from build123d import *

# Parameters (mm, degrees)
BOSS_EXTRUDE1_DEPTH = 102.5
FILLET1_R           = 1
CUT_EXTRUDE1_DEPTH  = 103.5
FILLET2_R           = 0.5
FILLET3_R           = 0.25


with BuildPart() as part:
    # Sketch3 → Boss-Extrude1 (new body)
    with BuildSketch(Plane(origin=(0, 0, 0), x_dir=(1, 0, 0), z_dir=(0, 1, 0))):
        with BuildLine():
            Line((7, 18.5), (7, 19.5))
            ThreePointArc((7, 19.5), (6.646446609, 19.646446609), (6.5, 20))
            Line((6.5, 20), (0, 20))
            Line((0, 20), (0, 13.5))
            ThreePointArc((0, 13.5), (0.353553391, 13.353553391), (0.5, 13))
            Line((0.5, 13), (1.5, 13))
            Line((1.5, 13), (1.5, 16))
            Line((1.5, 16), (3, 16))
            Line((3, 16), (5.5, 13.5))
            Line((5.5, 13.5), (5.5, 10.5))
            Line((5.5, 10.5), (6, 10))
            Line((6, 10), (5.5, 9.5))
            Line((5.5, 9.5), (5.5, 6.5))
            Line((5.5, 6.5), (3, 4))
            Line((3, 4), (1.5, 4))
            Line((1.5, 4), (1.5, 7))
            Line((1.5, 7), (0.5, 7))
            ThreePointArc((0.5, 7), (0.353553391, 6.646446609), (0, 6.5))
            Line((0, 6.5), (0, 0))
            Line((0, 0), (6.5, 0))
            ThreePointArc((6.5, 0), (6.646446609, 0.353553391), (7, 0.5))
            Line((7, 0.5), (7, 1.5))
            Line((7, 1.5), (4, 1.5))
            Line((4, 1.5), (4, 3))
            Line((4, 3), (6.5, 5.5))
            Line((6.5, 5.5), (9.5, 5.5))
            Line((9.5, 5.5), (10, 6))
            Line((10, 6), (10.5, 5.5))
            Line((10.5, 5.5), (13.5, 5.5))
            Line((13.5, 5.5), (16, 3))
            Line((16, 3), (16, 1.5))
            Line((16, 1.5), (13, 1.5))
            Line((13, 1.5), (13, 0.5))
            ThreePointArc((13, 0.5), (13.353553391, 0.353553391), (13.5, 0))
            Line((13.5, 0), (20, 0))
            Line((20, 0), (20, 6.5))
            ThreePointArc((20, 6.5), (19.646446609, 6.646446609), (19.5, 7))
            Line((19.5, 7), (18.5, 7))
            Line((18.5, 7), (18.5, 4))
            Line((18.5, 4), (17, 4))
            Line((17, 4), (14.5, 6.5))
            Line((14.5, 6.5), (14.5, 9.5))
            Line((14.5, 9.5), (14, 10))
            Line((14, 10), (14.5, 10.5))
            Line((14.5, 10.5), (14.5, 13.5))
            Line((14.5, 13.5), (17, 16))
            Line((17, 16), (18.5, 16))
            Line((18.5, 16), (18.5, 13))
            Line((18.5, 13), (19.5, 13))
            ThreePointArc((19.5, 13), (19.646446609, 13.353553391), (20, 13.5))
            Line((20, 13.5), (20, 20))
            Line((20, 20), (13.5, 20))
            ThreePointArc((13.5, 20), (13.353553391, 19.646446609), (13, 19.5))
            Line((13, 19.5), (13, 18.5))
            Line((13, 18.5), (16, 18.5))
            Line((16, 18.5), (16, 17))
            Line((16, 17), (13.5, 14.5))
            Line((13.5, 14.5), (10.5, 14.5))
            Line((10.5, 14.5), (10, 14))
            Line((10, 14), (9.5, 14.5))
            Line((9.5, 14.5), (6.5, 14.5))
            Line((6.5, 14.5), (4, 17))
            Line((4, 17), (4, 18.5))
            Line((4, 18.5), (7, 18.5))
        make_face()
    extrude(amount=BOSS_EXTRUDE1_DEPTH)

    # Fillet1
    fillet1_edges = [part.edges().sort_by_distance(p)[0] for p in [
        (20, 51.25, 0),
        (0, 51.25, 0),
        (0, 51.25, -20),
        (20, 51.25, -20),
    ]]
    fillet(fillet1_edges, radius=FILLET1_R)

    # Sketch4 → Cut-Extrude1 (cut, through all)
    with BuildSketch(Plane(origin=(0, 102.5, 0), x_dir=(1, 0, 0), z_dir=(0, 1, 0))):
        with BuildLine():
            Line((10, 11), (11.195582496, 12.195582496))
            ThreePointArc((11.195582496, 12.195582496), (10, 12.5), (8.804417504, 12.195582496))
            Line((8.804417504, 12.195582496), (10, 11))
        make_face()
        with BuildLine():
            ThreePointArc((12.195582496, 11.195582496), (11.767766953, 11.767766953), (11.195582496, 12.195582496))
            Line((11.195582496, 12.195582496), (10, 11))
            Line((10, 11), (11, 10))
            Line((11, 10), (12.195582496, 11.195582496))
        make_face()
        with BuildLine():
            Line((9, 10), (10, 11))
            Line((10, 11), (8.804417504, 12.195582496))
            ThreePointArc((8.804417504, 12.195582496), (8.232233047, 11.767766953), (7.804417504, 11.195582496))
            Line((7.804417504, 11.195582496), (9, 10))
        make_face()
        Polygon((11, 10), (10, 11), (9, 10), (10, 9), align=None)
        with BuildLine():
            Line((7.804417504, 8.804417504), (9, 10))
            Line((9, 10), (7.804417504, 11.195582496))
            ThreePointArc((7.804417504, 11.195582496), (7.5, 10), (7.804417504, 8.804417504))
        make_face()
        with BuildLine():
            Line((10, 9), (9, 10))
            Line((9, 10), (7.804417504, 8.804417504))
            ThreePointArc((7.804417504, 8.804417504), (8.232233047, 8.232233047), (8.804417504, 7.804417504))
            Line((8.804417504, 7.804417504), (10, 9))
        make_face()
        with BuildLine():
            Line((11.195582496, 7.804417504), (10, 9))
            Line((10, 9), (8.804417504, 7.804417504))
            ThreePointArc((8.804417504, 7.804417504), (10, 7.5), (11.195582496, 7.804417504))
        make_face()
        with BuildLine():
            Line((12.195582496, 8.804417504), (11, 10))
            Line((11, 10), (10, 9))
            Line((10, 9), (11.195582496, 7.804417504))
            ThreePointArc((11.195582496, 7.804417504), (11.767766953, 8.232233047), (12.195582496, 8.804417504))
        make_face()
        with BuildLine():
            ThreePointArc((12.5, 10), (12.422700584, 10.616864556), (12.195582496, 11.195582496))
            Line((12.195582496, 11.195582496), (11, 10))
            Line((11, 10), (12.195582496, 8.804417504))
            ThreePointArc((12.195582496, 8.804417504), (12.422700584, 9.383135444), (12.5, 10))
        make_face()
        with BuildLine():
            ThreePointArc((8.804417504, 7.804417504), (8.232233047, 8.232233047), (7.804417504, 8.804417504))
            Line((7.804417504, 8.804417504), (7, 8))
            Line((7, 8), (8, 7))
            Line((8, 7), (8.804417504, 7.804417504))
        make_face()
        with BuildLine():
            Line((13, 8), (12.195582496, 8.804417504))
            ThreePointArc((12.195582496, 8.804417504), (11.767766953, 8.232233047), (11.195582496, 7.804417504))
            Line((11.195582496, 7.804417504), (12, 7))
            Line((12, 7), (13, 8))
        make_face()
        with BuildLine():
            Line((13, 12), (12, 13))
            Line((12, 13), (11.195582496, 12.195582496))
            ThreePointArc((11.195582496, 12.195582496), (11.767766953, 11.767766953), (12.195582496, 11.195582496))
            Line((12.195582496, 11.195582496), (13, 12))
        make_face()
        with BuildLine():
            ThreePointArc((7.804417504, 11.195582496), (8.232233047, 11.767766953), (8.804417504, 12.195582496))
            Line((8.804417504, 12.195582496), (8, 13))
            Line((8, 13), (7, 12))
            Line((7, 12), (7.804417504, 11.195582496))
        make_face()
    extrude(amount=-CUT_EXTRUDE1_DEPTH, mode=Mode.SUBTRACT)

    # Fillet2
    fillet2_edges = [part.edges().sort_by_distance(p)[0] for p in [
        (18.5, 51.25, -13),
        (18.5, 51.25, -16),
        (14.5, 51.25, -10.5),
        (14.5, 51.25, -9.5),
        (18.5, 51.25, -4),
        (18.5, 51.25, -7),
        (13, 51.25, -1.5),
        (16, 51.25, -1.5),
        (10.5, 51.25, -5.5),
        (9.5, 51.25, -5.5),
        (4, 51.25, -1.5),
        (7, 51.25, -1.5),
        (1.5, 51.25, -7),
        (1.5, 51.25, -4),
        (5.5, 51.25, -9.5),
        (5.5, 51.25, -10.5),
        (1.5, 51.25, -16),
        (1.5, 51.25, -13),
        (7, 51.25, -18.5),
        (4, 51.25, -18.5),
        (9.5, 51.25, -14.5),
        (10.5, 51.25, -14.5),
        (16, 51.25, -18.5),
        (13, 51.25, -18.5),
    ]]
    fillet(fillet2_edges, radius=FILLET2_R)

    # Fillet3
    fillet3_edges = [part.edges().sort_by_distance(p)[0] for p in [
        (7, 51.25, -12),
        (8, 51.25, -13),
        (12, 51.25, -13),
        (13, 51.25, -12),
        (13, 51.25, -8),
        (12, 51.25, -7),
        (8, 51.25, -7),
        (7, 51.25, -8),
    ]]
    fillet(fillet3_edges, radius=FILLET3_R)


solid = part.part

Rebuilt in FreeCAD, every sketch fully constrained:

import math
import FreeCAD as App
import Part
import Sketcher
Q = App.Units.Quantity


def edges_at(feature, points):
    """Names of the edges that pass closest to the given points."""
    edges = feature.Shape.Edges
    near = lambda p: min(range(len(edges)), key=lambda i: edges[i].distToShape(Part.Vertex(*p))[0])
    return sorted({f"Edge{near(p) + 1}" for p in points})

doc = App.newDocument("Part")
body = doc.addObject("PartDesign::Body", "Body")

sketch1 = doc.addObject("Sketcher::SketchObject", "Sketch")
body.addObject(sketch1)
sketch1.AttachmentSupport = (doc.XZ_Plane, [""])
sketch1.MapMode = "FlatFace"
sketch1.addGeometry(Part.LineSegment(App.Vector(7, -18.5, 0), App.Vector(7, -19.5, 0)), False)
sketch1.addGeometry(Part.ArcOfCircle(Part.Circle(App.Vector(7, -20, 0), App.Vector(0, 0, 1), 0.5), math.radians(90), math.radians(180)), False)
sketch1.addGeometry(Part.LineSegment(App.Vector(6.5, -20, 0), App.Vector(0, -20, 0)), False)
sketch1.addGeometry(Part.LineSegment(App.Vector(0, -20, 0), App.Vector(0, -13.5, 0)), False)
sketch1.addGeometry(Part.ArcOfCircle(Part.Circle(App.Vector(0, -13, 0), App.Vector(0, 0, 1), 0.5), math.radians(-90), math.radians(0)), False)
sketch1.addGeometry(Part.LineSegment(App.Vector(0.5, -13, 0), App.Vector(1.5, -13, 0)), False)
sketch1.addGeometry(Part.LineSegment(App.Vector(1.5, -13, 0), App.Vector(1.5, -16, 0)), False)
sketch1.addGeometry(Part.LineSegment(App.Vector(1.5, -16, 0), App.Vector(3, -16, 0)), False)
sketch1.addGeometry(Part.LineSegment(App.Vector(3, -16, 0), App.Vector(5.5, -13.5, 0)), False)
sketch1.addGeometry(Part.LineSegment(App.Vector(5.5, -13.5, 0), App.Vector(5.5, -10.5, 0)), False)
sketch1.addGeometry(Part.LineSegment(App.Vector(5.5, -10.5, 0), App.Vector(6, -10, 0)), False)
sketch1.addGeometry(Part.LineSegment(App.Vector(6, -10, 0), App.Vector(5.5, -9.5, 0)), False)
sketch1.addGeometry(Part.LineSegment(App.Vector(5.5, -9.5, 0), App.Vector(5.5, -6.5, 0)), False)
sketch1.addGeometry(Part.LineSegment(App.Vector(5.5, -6.5, 0), App.Vector(3, -4, 0)), False)
sketch1.addGeometry(Part.LineSegment(App.Vector(3, -4, 0), App.Vector(1.5, -4, 0)), False)
sketch1.addGeometry(Part.LineSegment(App.Vector(1.5, -4, 0), App.Vector(1.5, -7, 0)), False)
sketch1.addGeometry(Part.LineSegment(App.Vector(1.5, -7, 0), App.Vector(0.5, -7, 0)), False)
sketch1.addGeometry(Part.ArcOfCircle(Part.Circle(App.Vector(0, -7, 0), App.Vector(0, 0, 1), 0.5), math.radians(0), math.radians(90)), False)
sketch1.addGeometry(Part.LineSegment(App.Vector(0, -6.5, 0), App.Vector(0, 0, 0)), False)
sketch1.addGeometry(Part.LineSegment(App.Vector(0, 0, 0), App.Vector(6.5, 0, 0)), False)
sketch1.addGeometry(Part.ArcOfCircle(Part.Circle(App.Vector(7, 0, 0), App.Vector(0, 0, 1), 0.5), math.radians(180), math.radians(270)), False)
sketch1.addGeometry(Part.LineSegment(App.Vector(7, -0.5, 0), App.Vector(7, -1.5, 0)), False)
sketch1.addGeometry(Part.LineSegment(App.Vector(7, -1.5, 0), App.Vector(4, -1.5, 0)), False)
sketch1.addGeometry(Part.LineSegment(App.Vector(4, -1.5, 0), App.Vector(4, -3, 0)), False)
sketch1.addGeometry(Part.LineSegment(App.Vector(4, -3, 0), App.Vector(6.5, -5.5, 0)), False)
sketch1.addGeometry(Part.LineSegment(App.Vector(6.5, -5.5, 0), App.Vector(9.5, -5.5, 0)), False)
sketch1.addGeometry(Part.LineSegment(App.Vector(9.5, -5.5, 0), App.Vector(10, -6, 0)), False)
sketch1.addGeometry(Part.LineSegment(App.Vector(10, -6, 0), App.Vector(10.5, -5.5, 0)), False)
sketch1.addGeometry(Part.LineSegment(App.Vector(10.5, -5.5, 0), App.Vector(13.5, -5.5, 0)), False)
sketch1.addGeometry(Part.LineSegment(App.Vector(13.5, -5.5, 0), App.Vector(16, -3, 0)), False)
sketch1.addGeometry(Part.LineSegment(App.Vector(16, -3, 0), App.Vector(16, -1.5, 0)), False)
sketch1.addGeometry(Part.LineSegment(App.Vector(16, -1.5, 0), App.Vector(13, -1.5, 0)), False)
sketch1.addGeometry(Part.LineSegment(App.Vector(13, -1.5, 0), App.Vector(13, -0.5, 0)), False)
sketch1.addGeometry(Part.ArcOfCircle(Part.Circle(App.Vector(13, 0, 0), App.Vector(0, 0, 1), 0.5), math.radians(-90), math.radians(0)), False)
sketch1.addGeometry(Part.LineSegment(App.Vector(13.5, 0, 0), App.Vector(20, 0, 0)), False)
sketch1.addGeometry(Part.LineSegment(App.Vector(20, 0, 0), App.Vector(20, -6.5, 0)), False)
sketch1.addGeometry(Part.ArcOfCircle(Part.Circle(App.Vector(20, -7, 0), App.Vector(0, 0, 1), 0.5), math.radians(90), math.radians(180)), False)
sketch1.addGeometry(Part.LineSegment(App.Vector(19.5, -7, 0), App.Vector(18.5, -7, 0)), False)
sketch1.addGeometry(Part.LineSegment(App.Vector(18.5, -7, 0), App.Vector(18.5, -4, 0)), False)
sketch1.addGeometry(Part.LineSegment(App.Vector(18.5, -4, 0), App.Vector(17, -4, 0)), False)
sketch1.addGeometry(Part.LineSegment(App.Vector(17, -4, 0), App.Vector(14.5, -6.5, 0)), False)
sketch1.addGeometry(Part.LineSegment(App.Vector(14.5, -6.5, 0), App.Vector(14.5, -9.5, 0)), False)
sketch1.addGeometry(Part.LineSegment(App.Vector(14.5, -9.5, 0), App.Vector(14, -10, 0)), False)
sketch1.addGeometry(Part.LineSegment(App.Vector(14, -10, 0), App.Vector(14.5, -10.5, 0)), False)
sketch1.addGeometry(Part.LineSegment(App.Vector(14.5, -10.5, 0), App.Vector(14.5, -13.5, 0)), False)
sketch1.addGeometry(Part.LineSegment(App.Vector(14.5, -13.5, 0), App.Vector(17, -16, 0)), False)
sketch1.addGeometry(Part.LineSegment(App.Vector(17, -16, 0), App.Vector(18.5, -16, 0)), False)
sketch1.addGeometry(Part.LineSegment(App.Vector(18.5, -16, 0), App.Vector(18.5, -13, 0)), False)
sketch1.addGeometry(Part.LineSegment(App.Vector(18.5, -13, 0), App.Vector(19.5, -13, 0)), False)
sketch1.addGeometry(Part.ArcOfCircle(Part.Circle(App.Vector(20, -13, 0), App.Vector(0, 0, 1), 0.5), math.radians(180), math.radians(270)), False)
sketch1.addGeometry(Part.LineSegment(App.Vector(20, -13.5, 0), App.Vector(20, -20, 0)), False)
sketch1.addGeometry(Part.LineSegment(App.Vector(20, -20, 0), App.Vector(13.5, -20, 0)), False)
sketch1.addGeometry(Part.ArcOfCircle(Part.Circle(App.Vector(13, -20, 0), App.Vector(0, 0, 1), 0.5), math.radians(0), math.radians(90)), False)
sketch1.addGeometry(Part.LineSegment(App.Vector(13, -19.5, 0), App.Vector(13, -18.5, 0)), False)
sketch1.addGeometry(Part.LineSegment(App.Vector(13, -18.5, 0), App.Vector(16, -18.5, 0)), False)
sketch1.addGeometry(Part.LineSegment(App.Vector(16, -18.5, 0), App.Vector(16, -17, 0)), False)
sketch1.addGeometry(Part.LineSegment(App.Vector(16, -17, 0), App.Vector(13.5, -14.5, 0)), False)
sketch1.addGeometry(Part.LineSegment(App.Vector(13.5, -14.5, 0), App.Vector(10.5, -14.5, 0)), False)
sketch1.addGeometry(Part.LineSegment(App.Vector(10.5, -14.5, 0), App.Vector(10, -14, 0)), False)
sketch1.addGeometry(Part.LineSegment(App.Vector(10, -14, 0), App.Vector(9.5, -14.5, 0)), False)
sketch1.addGeometry(Part.LineSegment(App.Vector(9.5, -14.5, 0), App.Vector(6.5, -14.5, 0)), False)
sketch1.addGeometry(Part.LineSegment(App.Vector(6.5, -14.5, 0), App.Vector(4, -17, 0)), False)
sketch1.addGeometry(Part.LineSegment(App.Vector(4, -17, 0), App.Vector(4, -18.5, 0)), False)
sketch1.addGeometry(Part.LineSegment(App.Vector(4, -18.5, 0), App.Vector(7, -18.5, 0)), False)
sketch1.addConstraint(Sketcher.Constraint("Coincident", 0, 2, 1, 1))
sketch1.addConstraint(Sketcher.Constraint("Coincident", 1, 2, 2, 1))
sketch1.addConstraint(Sketcher.Constraint("Coincident", 2, 2, 3, 1))
sketch1.addConstraint(Sketcher.Constraint("Coincident", 3, 2, 4, 1))
sketch1.addConstraint(Sketcher.Constraint("Coincident", 4, 2, 5, 1))
sketch1.addConstraint(Sketcher.Constraint("Coincident", 5, 2, 6, 1))
sketch1.addConstraint(Sketcher.Constraint("Coincident", 6, 2, 7, 1))
sketch1.addConstraint(Sketcher.Constraint("Coincident", 7, 2, 8, 1))
sketch1.addConstraint(Sketcher.Constraint("Coincident", 8, 2, 9, 1))
sketch1.addConstraint(Sketcher.Constraint("Coincident", 9, 2, 10, 1))
sketch1.addConstraint(Sketcher.Constraint("Coincident", 10, 2, 11, 1))
sketch1.addConstraint(Sketcher.Constraint("Coincident", 11, 2, 12, 1))
sketch1.addConstraint(Sketcher.Constraint("Coincident", 12, 2, 13, 1))
sketch1.addConstraint(Sketcher.Constraint("Coincident", 13, 2, 14, 1))
sketch1.addConstraint(Sketcher.Constraint("Coincident", 14, 2, 15, 1))
sketch1.addConstraint(Sketcher.Constraint("Coincident", 15, 2, 16, 1))
sketch1.addConstraint(Sketcher.Constraint("Coincident", 16, 2, 17, 1))
sketch1.addConstraint(Sketcher.Constraint("Coincident", 17, 2, 18, 1))
sketch1.addConstraint(Sketcher.Constraint("Coincident", 18, 2, 19, 1))
sketch1.addConstraint(Sketcher.Constraint("Coincident", 19, 2, 20, 1))
sketch1.addConstraint(Sketcher.Constraint("Coincident", 20, 2, 21, 1))
sketch1.addConstraint(Sketcher.Constraint("Coincident", 21, 2, 22, 1))
sketch1.addConstraint(Sketcher.Constraint("Coincident", 22, 2, 23, 1))
sketch1.addConstraint(Sketcher.Constraint("Coincident", 23, 2, 24, 1))
sketch1.addConstraint(Sketcher.Constraint("Coincident", 24, 2, 25, 1))
sketch1.addConstraint(Sketcher.Constraint("Coincident", 25, 2, 26, 1))
sketch1.addConstraint(Sketcher.Constraint("Coincident", 26, 2, 27, 1))
sketch1.addConstraint(Sketcher.Constraint("Coincident", 27, 2, 28, 1))
sketch1.addConstraint(Sketcher.Constraint("Coincident", 28, 2, 29, 1))
sketch1.addConstraint(Sketcher.Constraint("Coincident", 29, 2, 30, 1))
sketch1.addConstraint(Sketcher.Constraint("Coincident", 30, 2, 31, 1))
sketch1.addConstraint(Sketcher.Constraint("Coincident", 31, 2, 32, 1))
sketch1.addConstraint(Sketcher.Constraint("Coincident", 32, 2, 33, 1))
sketch1.addConstraint(Sketcher.Constraint("Coincident", 33, 2, 34, 1))
sketch1.addConstraint(Sketcher.Constraint("Coincident", 34, 2, 35, 1))
sketch1.addConstraint(Sketcher.Constraint("Coincident", 35, 2, 36, 1))
sketch1.addConstraint(Sketcher.Constraint("Coincident", 36, 2, 37, 1))
sketch1.addConstraint(Sketcher.Constraint("Coincident", 37, 2, 38, 1))
sketch1.addConstraint(Sketcher.Constraint("Coincident", 38, 2, 39, 1))
sketch1.addConstraint(Sketcher.Constraint("Coincident", 39, 2, 40, 1))
sketch1.addConstraint(Sketcher.Constraint("Coincident", 40, 2, 41, 1))
sketch1.addConstraint(Sketcher.Constraint("Coincident", 41, 2, 42, 1))
sketch1.addConstraint(Sketcher.Constraint("Coincident", 42, 2, 43, 1))
sketch1.addConstraint(Sketcher.Constraint("Coincident", 43, 2, 44, 1))
sketch1.addConstraint(Sketcher.Constraint("Coincident", 44, 2, 45, 1))
sketch1.addConstraint(Sketcher.Constraint("Coincident", 45, 2, 46, 1))
sketch1.addConstraint(Sketcher.Constraint("Coincident", 46, 2, 47, 1))
sketch1.addConstraint(Sketcher.Constraint("Coincident", 47, 2, 48, 1))
sketch1.addConstraint(Sketcher.Constraint("Coincident", 48, 2, 49, 1))
sketch1.addConstraint(Sketcher.Constraint("Coincident", 49, 2, 50, 1))
sketch1.addConstraint(Sketcher.Constraint("Coincident", 50, 2, 51, 1))
sketch1.addConstraint(Sketcher.Constraint("Coincident", 51, 2, 52, 1))
sketch1.addConstraint(Sketcher.Constraint("Coincident", 52, 2, 53, 1))
sketch1.addConstraint(Sketcher.Constraint("Coincident", 53, 2, 54, 1))
sketch1.addConstraint(Sketcher.Constraint("Coincident", 54, 2, 55, 1))
sketch1.addConstraint(Sketcher.Constraint("Coincident", 55, 2, 56, 1))
sketch1.addConstraint(Sketcher.Constraint("Coincident", 56, 2, 57, 1))
sketch1.addConstraint(Sketcher.Constraint("Coincident", 57, 2, 58, 1))
sketch1.addConstraint(Sketcher.Constraint("Coincident", 58, 2, 59, 1))
sketch1.addConstraint(Sketcher.Constraint("Coincident", 59, 2, 60, 1))
sketch1.addConstraint(Sketcher.Constraint("Coincident", 60, 2, 61, 1))
sketch1.addConstraint(Sketcher.Constraint("Coincident", 61, 2, 62, 1))
sketch1.addConstraint(Sketcher.Constraint("Coincident", 62, 2, 63, 1))
sketch1.addConstraint(Sketcher.Constraint("Coincident", 63, 2, 0, 1))
sketch1.addConstraint(Sketcher.Constraint("Vertical", 0))
sketch1.addConstraint(Sketcher.Constraint("Horizontal", 2))
sketch1.addConstraint(Sketcher.Constraint("Vertical", 3))
sketch1.addConstraint(Sketcher.Constraint("Horizontal", 5))
sketch1.addConstraint(Sketcher.Constraint("Vertical", 6))
sketch1.addConstraint(Sketcher.Constraint("Horizontal", 7))
sketch1.addConstraint(Sketcher.Constraint("Vertical", 9))
sketch1.addConstraint(Sketcher.Constraint("Vertical", 12))
sketch1.addConstraint(Sketcher.Constraint("Horizontal", 14))
sketch1.addConstraint(Sketcher.Constraint("Vertical", 15))
sketch1.addConstraint(Sketcher.Constraint("Horizontal", 16))
sketch1.addConstraint(Sketcher.Constraint("Vertical", 18))
sketch1.addConstraint(Sketcher.Constraint("Horizontal", 19))
sketch1.addConstraint(Sketcher.Constraint("Vertical", 21))
sketch1.addConstraint(Sketcher.Constraint("Horizontal", 22))
sketch1.addConstraint(Sketcher.Constraint("Vertical", 23))
sketch1.addConstraint(Sketcher.Constraint("Horizontal", 25))
sketch1.addConstraint(Sketcher.Constraint("Horizontal", 28))
sketch1.addConstraint(Sketcher.Constraint("Vertical", 30))
sketch1.addConstraint(Sketcher.Constraint("Horizontal", 31))
sketch1.addConstraint(Sketcher.Constraint("Vertical", 32))
sketch1.addConstraint(Sketcher.Constraint("Horizontal", 34))
sketch1.addConstraint(Sketcher.Constraint("Vertical", 35))
sketch1.addConstraint(Sketcher.Constraint("Horizontal", 37))
sketch1.addConstraint(Sketcher.Constraint("Vertical", 38))
sketch1.addConstraint(Sketcher.Constraint("Horizontal", 39))
sketch1.addConstraint(Sketcher.Constraint("Vertical", 41))
sketch1.addConstraint(Sketcher.Constraint("Vertical", 44))
sketch1.addConstraint(Sketcher.Constraint("Horizontal", 46))
sketch1.addConstraint(Sketcher.Constraint("Vertical", 47))
sketch1.addConstraint(Sketcher.Constraint("Horizontal", 48))
sketch1.addConstraint(Sketcher.Constraint("Vertical", 50))
sketch1.addConstraint(Sketcher.Constraint("Horizontal", 51))
sketch1.addConstraint(Sketcher.Constraint("Vertical", 53))
sketch1.addConstraint(Sketcher.Constraint("Horizontal", 54))
sketch1.addConstraint(Sketcher.Constraint("Vertical", 55))
sketch1.addConstraint(Sketcher.Constraint("Horizontal", 57))
sketch1.addConstraint(Sketcher.Constraint("Horizontal", 60))
sketch1.addConstraint(Sketcher.Constraint("Vertical", 62))
sketch1.addConstraint(Sketcher.Constraint("Horizontal", 63))
sketch1.addConstraint(Sketcher.Constraint("Coincident", 18, 2, -1, 1))
sketch1.addConstraint(Sketcher.Constraint("Equal", 1, 4))
sketch1.addConstraint(Sketcher.Constraint("Equal", 4, 17))
sketch1.addConstraint(Sketcher.Constraint("Equal", 17, 20))
sketch1.addConstraint(Sketcher.Constraint("Equal", 20, 33))
sketch1.addConstraint(Sketcher.Constraint("Equal", 33, 36))
sketch1.addConstraint(Sketcher.Constraint("Equal", 36, 49))
sketch1.addConstraint(Sketcher.Constraint("Equal", 49, 52))
sketch1.addConstraint(Sketcher.Constraint("PointOnObject", 4, 3, -2))
sketch1.addConstraint(Sketcher.Constraint("PointOnObject", 17, 3, -2))
sketch1.addConstraint(Sketcher.Constraint("PointOnObject", 20, 3, -1))
sketch1.addConstraint(Sketcher.Constraint("PointOnObject", 33, 3, -1))
sketch1.addConstraint(Sketcher.Constraint("PointOnObject", 2, 2, -2))
sketch1.addConstraint(Sketcher.Constraint("PointOnObject", 33, 2, -1))
sketch1.addConstraint(Sketcher.Constraint("Parallel", 8, 10))
sketch1.addConstraint(Sketcher.Constraint("Perpendicular", 10, 11))
sketch1.addConstraint(Sketcher.Constraint("Parallel", 11, 13))
sketch1.addConstraint(Sketcher.Constraint("Parallel", 13, 24))
sketch1.addConstraint(Sketcher.Constraint("Parallel", 24, 26))
sketch1.addConstraint(Sketcher.Constraint("Perpendicular", 26, 27))
sketch1.addConstraint(Sketcher.Constraint("Parallel", 27, 29))
sketch1.addConstraint(Sketcher.Constraint("Parallel", 29, 40))
sketch1.addConstraint(Sketcher.Constraint("Parallel", 40, 42))
sketch1.addConstraint(Sketcher.Constraint("Perpendicular", 42, 43))
sketch1.addConstraint(Sketcher.Constraint("Parallel", 43, 45))
sketch1.addConstraint(Sketcher.Constraint("Parallel", 45, 56))
sketch1.addConstraint(Sketcher.Constraint("Parallel", 56, 58))
sketch1.addConstraint(Sketcher.Constraint("Perpendicular", 58, 59))
sketch1.addConstraint(Sketcher.Constraint("Parallel", 59, 61))
sketch1.addConstraint(Sketcher.Constraint("Horizontal", 17, 3, 36, 3))
sketch1.addConstraint(Sketcher.Constraint("Horizontal", 4, 3, 49, 3))
sketch1.addConstraint(Sketcher.Constraint("Horizontal", 1, 3, 52, 3))
sketch1.addConstraint(Sketcher.Constraint("Horizontal", 52, 3, 1, 2))
sketch1.addConstraint(Sketcher.Constraint("Horizontal", 49, 3, 4, 2))
sketch1.addConstraint(Sketcher.Constraint("Horizontal", 3, 2, 8, 2))
sketch1.addConstraint(Sketcher.Constraint("Horizontal", 36, 3, 15, 2))
sketch1.addConstraint(Sketcher.Constraint("Horizontal", 12, 2, 17, 2))
sketch1.addConstraint(Sketcher.Constraint("Horizontal", 25, 2, 27, 2))
sketch1.addConstraint(Sketcher.Constraint("Horizontal", 23, 2, 29, 2))
sketch1.addConstraint(Sketcher.Constraint("Horizontal", 22, 2, 30, 2))
sketch1.addConstraint(Sketcher.Constraint("Horizontal", 16, 2, 36, 2))
sketch1.addConstraint(Sketcher.Constraint("Horizontal", 14, 2, 38, 2))
sketch1.addConstraint(Sketcher.Constraint("Horizontal", 35, 2, 40, 2))
sketch1.addConstraint(Sketcher.Constraint("Horizontal", 11, 2, 41, 2))
sketch1.addConstraint(Sketcher.Constraint("Horizontal", 10, 2, 42, 2))
sketch1.addConstraint(Sketcher.Constraint("Horizontal", 9, 2, 43, 2))
sketch1.addConstraint(Sketcher.Constraint("Horizontal", 8, 2, 44, 2))
sketch1.addConstraint(Sketcher.Constraint("Horizontal", 7, 2, 45, 2))
sketch1.addConstraint(Sketcher.Constraint("Horizontal", 5, 2, 47, 2))
sketch1.addConstraint(Sketcher.Constraint("Horizontal", 2, 2, 50, 2))
sketch1.addConstraint(Sketcher.Constraint("Horizontal", 57, 2, 59, 2))
sketch1.addConstraint(Sketcher.Constraint("Horizontal", 55, 2, 61, 2))
sketch1.addConstraint(Sketcher.Constraint("Horizontal", 54, 2, 62, 2))
sketch1.addConstraint(Sketcher.Constraint("Vertical", 1, 3, 20, 3))
sketch1.addConstraint(Sketcher.Constraint("Vertical", 36, 3, 49, 3))
sketch1.addConstraint(Sketcher.Constraint("Vertical", 33, 3, 52, 3))
sketch1.addConstraint(Sketcher.Constraint("Vertical", 20, 3, 0, 2))
sketch1.addConstraint(Sketcher.Constraint("Vertical", 9, 2, 11, 2))
sketch1.addConstraint(Sketcher.Constraint("Vertical", 7, 2, 13, 2))
sketch1.addConstraint(Sketcher.Constraint("Vertical", 6, 2, 14, 2))
sketch1.addConstraint(Sketcher.Constraint("Vertical", 0, 2, 20, 2))
sketch1.addConstraint(Sketcher.Constraint("Vertical", 19, 2, 24, 2))
sketch1.addConstraint(Sketcher.Constraint("Vertical", 52, 3, 31, 2))
sketch1.addConstraint(Sketcher.Constraint("Vertical", 28, 2, 33, 2))
sketch1.addConstraint(Sketcher.Constraint("Vertical", 49, 3, 34, 2))
sketch1.addConstraint(Sketcher.Constraint("Vertical", 41, 2, 43, 2))
sketch1.addConstraint(Sketcher.Constraint("Vertical", 38, 2, 46, 2))
sketch1.addConstraint(Sketcher.Constraint("Vertical", 35, 2, 49, 2))
sketch1.addConstraint(Sketcher.Constraint("Vertical", 32, 2, 52, 2))
sketch1.addConstraint(Sketcher.Constraint("Vertical", 30, 2, 54, 2))
sketch1.addConstraint(Sketcher.Constraint("Vertical", 51, 2, 56, 2))
sketch1.addConstraint(Sketcher.Constraint("Vertical", 27, 2, 57, 2))
sketch1.addConstraint(Sketcher.Constraint("Vertical", 26, 2, 58, 2))
sketch1.addConstraint(Sketcher.Constraint("Vertical", 24, 2, 60, 2))
sketch1.addConstraint(Sketcher.Constraint("Equal", 22, 25))
sketch1.addConstraint(Sketcher.Constraint("Equal", 25, 28))
sketch1.addConstraint(Sketcher.Constraint("Equal", 19, 34))
sketch1.addConstraint(Sketcher.Constraint("Equal", 16, 37))
sketch1.addConstraint(Sketcher.Constraint("Equal", 14, 39))
sketch1.addConstraint(Sketcher.Constraint("Equal", 48, 0))
sketch1.addConstraint(Sketcher.Constraint("Equal", 51, 3))
sketch1.addConstraint(Sketcher.Constraint("Equal", 63, 6))
sketch1.addConstraint(Sketcher.Constraint("Equal", 6, 9))
sketch1.addConstraint(Sketcher.Constraint("Equal", 9, 12))
sketch1.addConstraint(Sketcher.Constraint("Equal", 3, 18))
sketch1.addConstraint(Sketcher.Constraint("Equal", 0, 21))
sketch1.addConstraint(Sketcher.Constraint("Equal", 46, 23))
sketch1.addConstraint(Sketcher.Constraint("Equal", 30, 55))
sketch1.addConstraint(Sketcher.Constraint("Equal", 11, 26))
sketch1.addConstraint(Sketcher.Constraint("Radius", 1, Q("0.5 mm")))
sketch1.addConstraint(Sketcher.Constraint("DistanceX", 5, 1, 5, 2, Q("1 mm")))
sketch1.addConstraint(Sketcher.Constraint("DistanceX", 22, 2, 22, 1, Q("3 mm")))
sketch1.addConstraint(Sketcher.Constraint("DistanceX", 2, 2, 2, 1, Q("6.5 mm")))
sketch1.addConstraint(Sketcher.Constraint("DistanceX", 7, 1, 7, 2, Q("1.5 mm")))
sketch1.addConstraint(Sketcher.Constraint("DistanceY", 1, 3, -1, 1, Q("20 mm")))
pad1 = doc.addObject("PartDesign::Pad", "Pad")
body.addObject(pad1)
pad1.Profile = sketch1
pad1.Length = 102.5
pad1.Reversed = True
doc.recompute()

fillet = doc.addObject("PartDesign::Fillet", "Fillet")
body.addObject(fillet)
fillet.Base = (pad1, edges_at(pad1, [
    (20, 51.25, 0),
    (0, 51.25, 0),
    (0, 51.25, -20),
    (20, 51.25, -20),
]))
fillet.Radius = 1

sketch2 = doc.addObject("Sketcher::SketchObject", "Sketch001")
body.addObject(sketch2)
sketch2.AttachmentSupport = (doc.XZ_Plane, [""])
sketch2.MapMode = "FlatFace"
sketch2.AttachmentOffset = App.Placement(App.Vector(0, 0, -102.5), App.Rotation())
sketch2.addGeometry(Part.ArcOfCircle(Part.Circle(App.Vector(10, -10, 0), App.Vector(0, 0, 1), 2.5), math.radians(-119), math.radians(-61)), False)
sketch2.addGeometry(Part.LineSegment(App.Vector(8.8, -12.2, 0), App.Vector(8, -13, 0)), False)
sketch2.addGeometry(Part.LineSegment(App.Vector(8, -13, 0), App.Vector(7, -12, 0)), False)
sketch2.addGeometry(Part.LineSegment(App.Vector(7, -12, 0), App.Vector(7.8, -11.2, 0)), False)
sketch2.addGeometry(Part.ArcOfCircle(Part.Circle(App.Vector(10, -10, 0), App.Vector(0, 0, 1), 2.5), math.radians(151), math.radians(209)), False)
sketch2.addGeometry(Part.LineSegment(App.Vector(7.8, -8.8, 0), App.Vector(7, -8, 0)), False)
sketch2.addGeometry(Part.LineSegment(App.Vector(7, -8, 0), App.Vector(8, -7, 0)), False)
sketch2.addGeometry(Part.LineSegment(App.Vector(8, -7, 0), App.Vector(8.8, -7.8, 0)), False)
sketch2.addGeometry(Part.ArcOfCircle(Part.Circle(App.Vector(10, -10, 0), App.Vector(0, 0, 1), 2.5), math.radians(61), math.radians(119)), False)
sketch2.addGeometry(Part.LineSegment(App.Vector(11.2, -7.8, 0), App.Vector(12, -7, 0)), False)
sketch2.addGeometry(Part.LineSegment(App.Vector(12, -7, 0), App.Vector(13, -8, 0)), False)
sketch2.addGeometry(Part.LineSegment(App.Vector(13, -8, 0), App.Vector(12.2, -8.8, 0)), False)
sketch2.addGeometry(Part.ArcOfCircle(Part.Circle(App.Vector(10, -10, 0), App.Vector(0, 0, 1), 2.5), math.radians(0), math.radians(29)), False)
sketch2.addGeometry(Part.ArcOfCircle(Part.Circle(App.Vector(10, -10, 0), App.Vector(0, 0, 1), 2.5), math.radians(-29), math.radians(0)), False)
sketch2.addGeometry(Part.LineSegment(App.Vector(12.2, -11.2, 0), App.Vector(13, -12, 0)), False)
sketch2.addGeometry(Part.LineSegment(App.Vector(13, -12, 0), App.Vector(12, -13, 0)), False)
sketch2.addGeometry(Part.LineSegment(App.Vector(12, -13, 0), App.Vector(11.2, -12.2, 0)), False)
sketch2.addConstraint(Sketcher.Constraint("Coincident", 0, 1, 1, 1))
sketch2.addConstraint(Sketcher.Constraint("Coincident", 1, 2, 2, 1))
sketch2.addConstraint(Sketcher.Constraint("Coincident", 2, 2, 3, 1))
sketch2.addConstraint(Sketcher.Constraint("Coincident", 3, 2, 4, 2))
sketch2.addConstraint(Sketcher.Constraint("Coincident", 4, 1, 5, 1))
sketch2.addConstraint(Sketcher.Constraint("Coincident", 5, 2, 6, 1))
sketch2.addConstraint(Sketcher.Constraint("Coincident", 6, 2, 7, 1))
sketch2.addConstraint(Sketcher.Constraint("Coincident", 7, 2, 8, 2))
sketch2.addConstraint(Sketcher.Constraint("Coincident", 8, 1, 9, 1))
sketch2.addConstraint(Sketcher.Constraint("Coincident", 9, 2, 10, 1))
sketch2.addConstraint(Sketcher.Constraint("Coincident", 10, 2, 11, 1))
sketch2.addConstraint(Sketcher.Constraint("Coincident", 11, 2, 12, 2))
sketch2.addConstraint(Sketcher.Constraint("Tangent", 12, 1, 13, 2))
sketch2.addConstraint(Sketcher.Constraint("Coincident", 13, 1, 14, 1))
sketch2.addConstraint(Sketcher.Constraint("Coincident", 14, 2, 15, 1))
sketch2.addConstraint(Sketcher.Constraint("Coincident", 15, 2, 16, 1))
sketch2.addConstraint(Sketcher.Constraint("Coincident", 16, 2, 0, 2))
sketch2.addConstraint(Sketcher.Constraint("Coincident", 4, 3, 0, 3))
sketch2.addConstraint(Sketcher.Constraint("Coincident", 8, 3, 0, 3))
sketch2.addConstraint(Sketcher.Constraint("Coincident", 12, 3, 0, 3))
sketch2.addConstraint(Sketcher.Constraint("Equal", 0, 4))
sketch2.addConstraint(Sketcher.Constraint("Equal", 4, 8))
sketch2.addConstraint(Sketcher.Constraint("Equal", 8, 12))
sketch2.addConstraint(Sketcher.Constraint("Equal", 12, 13))
sketch2.addConstraint(Sketcher.Constraint("Perpendicular", 1, 2))
sketch2.addConstraint(Sketcher.Constraint("Perpendicular", 2, 3))
sketch2.addConstraint(Sketcher.Constraint("Perpendicular", 3, 5))
sketch2.addConstraint(Sketcher.Constraint("Perpendicular", 5, 6))
sketch2.addConstraint(Sketcher.Constraint("Perpendicular", 6, 7))
sketch2.addConstraint(Sketcher.Constraint("Perpendicular", 7, 9))
sketch2.addConstraint(Sketcher.Constraint("Perpendicular", 9, 10))
sketch2.addConstraint(Sketcher.Constraint("Perpendicular", 10, 11))
sketch2.addConstraint(Sketcher.Constraint("Perpendicular", 11, 14))
sketch2.addConstraint(Sketcher.Constraint("Perpendicular", 14, 15))
sketch2.addConstraint(Sketcher.Constraint("Perpendicular", 15, 16))
sketch2.addConstraint(Sketcher.Constraint("Horizontal", 7, 2, 8, 1))
sketch2.addConstraint(Sketcher.Constraint("Horizontal", 6, 2, 9, 2))
sketch2.addConstraint(Sketcher.Constraint("Horizontal", 5, 2, 10, 2))
sketch2.addConstraint(Sketcher.Constraint("Horizontal", 4, 1, 11, 2))
sketch2.addConstraint(Sketcher.Constraint("Horizontal", 13, 3, 12, 1))
sketch2.addConstraint(Sketcher.Constraint("Horizontal", 3, 2, 13, 1))
sketch2.addConstraint(Sketcher.Constraint("Horizontal", 2, 2, 14, 2))
sketch2.addConstraint(Sketcher.Constraint("Horizontal", 1, 2, 15, 2))
sketch2.addConstraint(Sketcher.Constraint("Vertical", 3, 2, 4, 1))
sketch2.addConstraint(Sketcher.Constraint("Vertical", 2, 2, 5, 2))
sketch2.addConstraint(Sketcher.Constraint("Vertical", 1, 2, 6, 2))
sketch2.addConstraint(Sketcher.Constraint("Equal", 1, 3))
sketch2.addConstraint(Sketcher.Constraint("Radius", 0, Q("2.5 mm")))
sketch2.addConstraint(Sketcher.Constraint("DistanceX", -1, 1, 0, 3, Q("10 mm")))
sketch2.addConstraint(Sketcher.Constraint("DistanceY", 0, 3, -1, 1, Q("10 mm")))
sketch2.addConstraint(Sketcher.Constraint("DistanceX", -1, 1, 1, 2, Q("8 mm")))
sketch2.addConstraint(Sketcher.Constraint("DistanceY", 1, 2, -1, 1, Q("13 mm")))
pocket1 = doc.addObject("PartDesign::Pocket", "Pocket")
body.addObject(pocket1)
pocket1.Profile = sketch2
pocket1.Type = "ThroughAll"
pocket1.Reversed = True
doc.recompute()

fillet2 = doc.addObject("PartDesign::Fillet", "Fillet001")
body.addObject(fillet2)
fillet2.Base = (pocket1, edges_at(pocket1, [
    (18.5, 51.25, -13),
    (18.5, 51.25, -16),
    (14.5, 51.25, -10.5),
    (14.5, 51.25, -9.5),
    (18.5, 51.25, -4),
    (18.5, 51.25, -7),
    (13, 51.25, -1.5),
    (16, 51.25, -1.5),
    (10.5, 51.25, -5.5),
    (9.5, 51.25, -5.5),
    (4, 51.25, -1.5),
    (7, 51.25, -1.5),
    (1.5, 51.25, -7),
    (1.5, 51.25, -4),
    (5.5, 51.25, -9.5),
    (5.5, 51.25, -10.5),
    (1.5, 51.25, -16),
    (1.5, 51.25, -13),
    (7, 51.25, -18.5),
    (4, 51.25, -18.5),
    (9.5, 51.25, -14.5),
    (10.5, 51.25, -14.5),
    (16, 51.25, -18.5),
    (13, 51.25, -18.5),
]))
fillet2.Radius = 0.5
doc.recompute()

fillet3 = doc.addObject("PartDesign::Fillet", "Fillet002")
body.addObject(fillet3)
fillet3.Base = (fillet2, edges_at(fillet2, [
    (7, 51.25, -12),
    (8, 51.25, -13),
    (12, 51.25, -13),
    (13, 51.25, -12),
    (13, 51.25, -8),
    (12, 51.25, -7),
    (8, 51.25, -7),
    (7, 51.25, -8),
]))
fillet3.Radius = 0.25

doc.recompute()
